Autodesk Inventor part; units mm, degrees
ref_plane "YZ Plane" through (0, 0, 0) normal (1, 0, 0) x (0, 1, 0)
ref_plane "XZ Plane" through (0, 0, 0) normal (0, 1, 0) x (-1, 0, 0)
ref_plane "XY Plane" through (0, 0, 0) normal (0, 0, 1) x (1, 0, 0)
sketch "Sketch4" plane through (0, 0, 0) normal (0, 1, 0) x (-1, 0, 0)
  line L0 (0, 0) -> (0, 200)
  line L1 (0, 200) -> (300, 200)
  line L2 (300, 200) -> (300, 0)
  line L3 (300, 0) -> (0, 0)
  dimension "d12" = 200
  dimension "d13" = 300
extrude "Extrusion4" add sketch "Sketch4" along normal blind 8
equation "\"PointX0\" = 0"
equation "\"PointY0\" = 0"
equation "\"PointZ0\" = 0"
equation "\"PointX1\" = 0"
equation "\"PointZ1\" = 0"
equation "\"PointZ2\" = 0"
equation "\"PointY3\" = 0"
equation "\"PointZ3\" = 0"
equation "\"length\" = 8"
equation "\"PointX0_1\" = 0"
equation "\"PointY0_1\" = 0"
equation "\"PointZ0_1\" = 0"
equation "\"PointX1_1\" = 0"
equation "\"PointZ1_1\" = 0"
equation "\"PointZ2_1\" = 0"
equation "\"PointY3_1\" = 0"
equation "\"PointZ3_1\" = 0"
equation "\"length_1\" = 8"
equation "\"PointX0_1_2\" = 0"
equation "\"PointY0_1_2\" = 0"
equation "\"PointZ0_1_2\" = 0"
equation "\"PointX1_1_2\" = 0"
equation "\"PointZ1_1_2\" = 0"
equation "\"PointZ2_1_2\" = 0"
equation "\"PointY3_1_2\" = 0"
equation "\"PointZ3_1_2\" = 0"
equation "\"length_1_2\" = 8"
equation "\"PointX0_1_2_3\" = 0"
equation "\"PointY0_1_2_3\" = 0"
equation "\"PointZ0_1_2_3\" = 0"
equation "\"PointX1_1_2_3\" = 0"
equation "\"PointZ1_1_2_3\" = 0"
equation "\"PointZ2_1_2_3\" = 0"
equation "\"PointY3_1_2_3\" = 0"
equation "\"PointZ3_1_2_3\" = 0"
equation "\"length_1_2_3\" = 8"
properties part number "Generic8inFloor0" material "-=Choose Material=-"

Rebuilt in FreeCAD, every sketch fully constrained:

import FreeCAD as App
import Part
import Sketcher
Q = App.Units.Quantity


def add_polygon(sketch, points):
    """Adds a closed chain of lines whose ends are joined by coincident constraints."""
    first, n = sketch.GeometryCount, len(points)
    for a, b in zip(points, points[1:] + points[:1]):
        sketch.addGeometry(Part.LineSegment(App.Vector(*a, 0), App.Vector(*b, 0)), False)
    for i in range(n):
        sketch.addConstraint(Sketcher.Constraint("Coincident", first + i, 2, first + (i + 1) % n, 1))

doc = App.newDocument("Part")
params = doc.addObject("Spreadsheet::Sheet", "Params")
for row, (alias, value) in enumerate([
    ("sketch1_width", "300 mm"),
    ("sketch1_height", "200 mm"),
    ("pad1_length", "8 mm"),
], start=1):
    params.set(f"A{row}", alias)
    params.set(f"B{row}", "=" + value)
    params.setAlias(f"B{row}", alias)

body = doc.addObject("PartDesign::Body", "Body")

# Sketch on XZ plane
sketch1 = doc.addObject("Sketcher::SketchObject", "Sketch")
body.addObject(sketch1)
sketch1.AttachmentSupport = (doc.XZ_Plane, [""])
sketch1.MapMode = "FlatFace"
add_polygon(sketch1, [(0, 200), (0, 0), (-300, 0), (-300, 200)])  # lines 0-3
sketch1.addConstraint(Sketcher.Constraint("Vertical", 0))
sketch1.addConstraint(Sketcher.Constraint("Horizontal", 1))
sketch1.addConstraint(Sketcher.Constraint("Vertical", 2))
sketch1.addConstraint(Sketcher.Constraint("Horizontal", 3))
sketch1.addConstraint(Sketcher.Constraint("Coincident", 0, 2, -1, 1))
sketch1.addConstraint(Sketcher.Constraint("DistanceX", 1, 2, 1, 1, Q("300 mm")))
sketch1.addConstraint(Sketcher.Constraint("DistanceY", 0, 2, 0, 1, Q("200 mm")))
sketch1.setExpression("Constraints[9]", "Params.sketch1_width")
sketch1.setExpression("Constraints[10]", "Params.sketch1_height")
pad1 = doc.addObject("PartDesign::Pad", "Pad")
body.addObject(pad1)
pad1.Profile = sketch1
pad1.setExpression("Length", "Params.pad1_length")
pad1.Reversed = True

doc.recompute()
